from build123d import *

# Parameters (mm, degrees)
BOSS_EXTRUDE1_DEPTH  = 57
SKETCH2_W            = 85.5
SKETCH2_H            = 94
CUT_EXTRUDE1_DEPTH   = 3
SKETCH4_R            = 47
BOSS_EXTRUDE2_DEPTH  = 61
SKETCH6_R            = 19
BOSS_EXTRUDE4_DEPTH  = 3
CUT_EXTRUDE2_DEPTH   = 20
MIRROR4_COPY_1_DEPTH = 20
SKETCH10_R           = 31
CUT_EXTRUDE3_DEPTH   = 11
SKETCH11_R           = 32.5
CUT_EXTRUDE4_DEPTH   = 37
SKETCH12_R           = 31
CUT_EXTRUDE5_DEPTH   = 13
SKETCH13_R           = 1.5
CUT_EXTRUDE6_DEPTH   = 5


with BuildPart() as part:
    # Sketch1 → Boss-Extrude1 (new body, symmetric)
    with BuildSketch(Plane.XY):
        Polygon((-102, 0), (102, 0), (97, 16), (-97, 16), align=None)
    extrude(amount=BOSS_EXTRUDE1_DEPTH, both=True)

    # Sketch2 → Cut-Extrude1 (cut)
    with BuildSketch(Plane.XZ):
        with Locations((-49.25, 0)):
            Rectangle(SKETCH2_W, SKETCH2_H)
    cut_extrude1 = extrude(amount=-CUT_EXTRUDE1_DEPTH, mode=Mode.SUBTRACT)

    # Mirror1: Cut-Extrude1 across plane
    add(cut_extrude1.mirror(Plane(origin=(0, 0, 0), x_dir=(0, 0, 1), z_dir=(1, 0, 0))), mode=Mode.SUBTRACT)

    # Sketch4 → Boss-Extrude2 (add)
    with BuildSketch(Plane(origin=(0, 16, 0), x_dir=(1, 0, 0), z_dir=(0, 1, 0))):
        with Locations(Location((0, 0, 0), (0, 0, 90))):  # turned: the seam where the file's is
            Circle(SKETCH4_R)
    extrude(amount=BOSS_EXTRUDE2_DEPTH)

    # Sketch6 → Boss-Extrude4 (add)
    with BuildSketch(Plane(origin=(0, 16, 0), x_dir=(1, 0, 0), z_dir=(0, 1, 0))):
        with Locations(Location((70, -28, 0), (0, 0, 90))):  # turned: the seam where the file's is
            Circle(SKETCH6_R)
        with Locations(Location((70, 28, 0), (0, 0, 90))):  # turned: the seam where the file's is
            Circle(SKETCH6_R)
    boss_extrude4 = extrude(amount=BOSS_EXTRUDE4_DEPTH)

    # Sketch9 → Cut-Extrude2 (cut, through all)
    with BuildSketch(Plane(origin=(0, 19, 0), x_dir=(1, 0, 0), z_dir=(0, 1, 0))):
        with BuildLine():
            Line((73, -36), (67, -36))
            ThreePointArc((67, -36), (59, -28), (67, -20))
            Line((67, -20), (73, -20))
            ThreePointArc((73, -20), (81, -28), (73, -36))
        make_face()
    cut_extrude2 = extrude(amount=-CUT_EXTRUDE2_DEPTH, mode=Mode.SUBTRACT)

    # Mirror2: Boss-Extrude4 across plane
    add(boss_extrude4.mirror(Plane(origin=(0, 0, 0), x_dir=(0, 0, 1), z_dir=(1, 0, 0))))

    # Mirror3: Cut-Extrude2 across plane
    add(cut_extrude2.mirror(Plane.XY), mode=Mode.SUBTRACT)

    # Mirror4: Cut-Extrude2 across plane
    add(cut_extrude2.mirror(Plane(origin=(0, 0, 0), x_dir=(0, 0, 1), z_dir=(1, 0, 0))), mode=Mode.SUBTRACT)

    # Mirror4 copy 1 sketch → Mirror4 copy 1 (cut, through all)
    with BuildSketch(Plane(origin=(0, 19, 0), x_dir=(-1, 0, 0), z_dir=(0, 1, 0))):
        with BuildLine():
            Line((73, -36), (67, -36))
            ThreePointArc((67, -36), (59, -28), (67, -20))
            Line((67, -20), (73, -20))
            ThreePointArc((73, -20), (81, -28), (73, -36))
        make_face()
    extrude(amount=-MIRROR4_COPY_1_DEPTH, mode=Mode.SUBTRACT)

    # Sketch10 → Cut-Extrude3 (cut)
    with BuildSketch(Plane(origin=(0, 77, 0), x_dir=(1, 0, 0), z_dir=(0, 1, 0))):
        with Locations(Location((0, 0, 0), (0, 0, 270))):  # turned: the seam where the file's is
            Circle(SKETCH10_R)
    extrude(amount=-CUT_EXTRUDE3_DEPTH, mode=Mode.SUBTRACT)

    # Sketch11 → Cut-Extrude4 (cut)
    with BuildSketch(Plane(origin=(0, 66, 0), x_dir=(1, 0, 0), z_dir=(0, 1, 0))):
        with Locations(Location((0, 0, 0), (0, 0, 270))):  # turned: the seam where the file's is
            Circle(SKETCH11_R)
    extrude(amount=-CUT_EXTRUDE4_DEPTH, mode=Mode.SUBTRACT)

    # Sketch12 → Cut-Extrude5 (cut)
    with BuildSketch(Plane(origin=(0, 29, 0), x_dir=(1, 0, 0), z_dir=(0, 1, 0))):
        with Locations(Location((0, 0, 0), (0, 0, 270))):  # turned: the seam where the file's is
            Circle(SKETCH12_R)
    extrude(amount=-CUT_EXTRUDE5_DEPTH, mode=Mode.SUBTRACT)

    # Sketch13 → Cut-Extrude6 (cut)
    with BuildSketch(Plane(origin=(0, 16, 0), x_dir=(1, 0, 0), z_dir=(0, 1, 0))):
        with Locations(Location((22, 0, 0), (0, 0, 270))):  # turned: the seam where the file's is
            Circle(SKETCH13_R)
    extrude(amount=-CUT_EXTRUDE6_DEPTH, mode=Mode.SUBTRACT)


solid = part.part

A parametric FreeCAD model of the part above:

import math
import FreeCAD as App
import Part
import Sketcher
from FreeCAD import Vector

doc = App.newDocument("Part")
body = doc.addObject("PartDesign::Body", "Body")

sketch1 = body.newObject("Sketcher::SketchObject", "Sketch")
sketch1.AttachmentSupport = (doc.getObject("XY_Plane"), [""])
sketch1.MapMode = "FlatFace"
sketch1.addGeometry(Part.LineSegment(Vector(-102, 0, 0), Vector(102, 0, 0)), False)
sketch1.addGeometry(Part.LineSegment(Vector(102, 0, 0), Vector(97, 16, 0)), False)
sketch1.addGeometry(Part.LineSegment(Vector(97, 16, 0), Vector(-97, 16, 0)), False)
sketch1.addGeometry(Part.LineSegment(Vector(-97, 16, 0), Vector(-102, 0, 0)), False)
sketch1.addConstraint(Sketcher.Constraint("Coincident", 0, 2, 1, 1))
sketch1.addConstraint(Sketcher.Constraint("Coincident", 1, 2, 2, 1))
sketch1.addConstraint(Sketcher.Constraint("Coincident", 2, 2, 3, 1))
sketch1.addConstraint(Sketcher.Constraint("Coincident", 3, 2, 0, 1))
sketch1.addConstraint(Sketcher.Constraint("Horizontal", 0))
sketch1.addConstraint(Sketcher.Constraint("Horizontal", 2))
sketch1.addConstraint(Sketcher.Constraint("Symmetric", 0, 2, 3, 2, -1, 1))
sketch1.addConstraint(Sketcher.Constraint("Equal", 1, 3))
sketch1.addConstraint(Sketcher.Constraint("DistanceX", 0, 1, 0, 2, 204.0))
sketch1.addConstraint(Sketcher.Constraint("DistanceX", 2, 2, 2, 1, 194.0))
sketch1.addConstraint(Sketcher.Constraint("DistanceY", -1, 1, 1, 2, 16.0))
pad1 = body.newObject("PartDesign::Pad", "Pad")
pad1.Profile = sketch1
pad1.Length = 114
pad1.Midplane = True

sketch2 = body.newObject("Sketcher::SketchObject", "Sketch001")
sketch2.AttachmentSupport = (doc.getObject("XZ_Plane"), [""])
sketch2.MapMode = "FlatFace"
sketch2.addGeometry(Part.LineSegment(Vector(-92, 47, 0), Vector(-92, -47, 0)), False)
sketch2.addGeometry(Part.LineSegment(Vector(-92, -47, 0), Vector(-6, -47, 0)), False)
sketch2.addGeometry(Part.LineSegment(Vector(-6, -47, 0), Vector(-6, 47, 0)), False)
sketch2.addGeometry(Part.LineSegment(Vector(-6, 47, 0), Vector(-92, 47, 0)), False)
sketch2.addConstraint(Sketcher.Constraint("Coincident", 0, 2, 1, 1))
sketch2.addConstraint(Sketcher.Constraint("Coincident", 1, 2, 2, 1))
sketch2.addConstraint(Sketcher.Constraint("Coincident", 2, 2, 3, 1))
sketch2.addConstraint(Sketcher.Constraint("Coincident", 3, 2, 0, 1))
sketch2.addConstraint(Sketcher.Constraint("Vertical", 0))
sketch2.addConstraint(Sketcher.Constraint("Horizontal", 1))
sketch2.addConstraint(Sketcher.Constraint("Vertical", 2))
sketch2.addConstraint(Sketcher.Constraint("Horizontal", 3))
sketch2.addConstraint(Sketcher.Constraint("DistanceY", 0, 2, 0, 1, 94.0))
sketch2.addConstraint(Sketcher.Constraint("DistanceX", 1, 1, 1, 2, 85.5))
sketch2.addConstraint(Sketcher.Constraint("DistanceX", 0, 2, -1, 1, 92.0))
sketch2.addConstraint(Sketcher.Constraint("DistanceY", 0, 2, -1, 1, 47.0))
pocket1 = body.newObject("PartDesign::Pocket", "Pocket")
pocket1.Profile = sketch2
pocket1.Length = 3
doc.recompute()

mirrored = body.newObject("PartDesign::Mirrored", "Mirrored")
mirrored.Originals = [pocket1]
mirrored.MirrorPlane = (doc.getObject("YZ_Plane"), [""])
body.Tip = mirrored

sketch3 = body.newObject("Sketcher::SketchObject", "Sketch002")
sketch3.AttachmentSupport = (doc.getObject("XZ_Plane"), [""])
sketch3.MapMode = "FlatFace"
sketch3.AttachmentOffset = App.Placement(Vector(0, 0, -16), App.Rotation())
sketch3.addGeometry(Part.Circle(Vector(0, 0, 0), Vector(0, 0, 1), 47), False)
sketch3.addConstraint(Sketcher.Constraint("Coincident", 0, 3, -1, 1))
sketch3.addConstraint(Sketcher.Constraint("Diameter", 0, 94.0))
pad2 = body.newObject("PartDesign::Pad", "Pad001")
pad2.Profile = sketch3
pad2.Length = 61
pad2.Reversed = True

sketch4 = body.newObject("Sketcher::SketchObject", "Sketch003")
sketch4.AttachmentSupport = (doc.getObject("XZ_Plane"), [""])
sketch4.MapMode = "FlatFace"
sketch4.AttachmentOffset = App.Placement(Vector(0, 0, -16), App.Rotation())
sketch4.addGeometry(Part.Circle(Vector(70, 28, 0), Vector(0, 0, 1), 19), False)
sketch4.addGeometry(Part.Circle(Vector(70, -28, 0), Vector(0, 0, 1), 19), False)
sketch4.addConstraint(Sketcher.Constraint("Equal", 0, 1))
sketch4.addConstraint(Sketcher.Constraint("Symmetric", 0, 3, 1, 3, -1))
sketch4.addConstraint(Sketcher.Constraint("Diameter", 0, 38.0))
sketch4.addConstraint(Sketcher.Constraint("DistanceX", -1, 1, 0, 3, 70.0))
sketch4.addConstraint(Sketcher.Constraint("DistanceY", -1, 1, 0, 3, 28.0))
pad3 = body.newObject("PartDesign::Pad", "Pad002")
pad3.Profile = sketch4
pad3.Length = 3
pad3.Reversed = True

sketch5 = body.newObject("Sketcher::SketchObject", "Sketch004")
sketch5.AttachmentSupport = (doc.getObject("XZ_Plane"), [""])
sketch5.MapMode = "FlatFace"
sketch5.AttachmentOffset = App.Placement(Vector(0, 0, -19), App.Rotation())
sketch5.addGeometry(Part.LineSegment(Vector(67, 36, 0), Vector(73, 36, 0)), False)
sketch5.addGeometry(Part.ArcOfCircle(Part.Circle(Vector(73, 28, 0), Vector(0, 0, 1), 8), math.radians(-90), math.radians(90)), False)
sketch5.addGeometry(Part.LineSegment(Vector(73, 20, 0), Vector(67, 20, 0)), False)
sketch5.addGeometry(Part.ArcOfCircle(Part.Circle(Vector(67, 28, 0), Vector(0, 0, 1), 8), math.radians(90), math.radians(270)), False)
sketch5.addConstraint(Sketcher.Constraint("Tangent", 0, 2, 1, 2))
sketch5.addConstraint(Sketcher.Constraint("Tangent", 1, 1, 2, 1))
sketch5.addConstraint(Sketcher.Constraint("Tangent", 2, 2, 3, 2))
sketch5.addConstraint(Sketcher.Constraint("Tangent", 3, 1, 0, 1))
sketch5.addConstraint(Sketcher.Constraint("Horizontal", 0))
sketch5.addConstraint(Sketcher.Constraint("Horizontal", 2))
sketch5.addConstraint(Sketcher.Constraint("Radius", 1, 8.0))
sketch5.addConstraint(Sketcher.Constraint("DistanceX", 0, 1, 0, 2, 6.0))
sketch5.addConstraint(Sketcher.Constraint("DistanceX", -1, 1, 1, 3, 73.0))
sketch5.addConstraint(Sketcher.Constraint("DistanceY", -1, 1, 1, 3, 28.0))
pocket2 = body.newObject("PartDesign::Pocket", "Pocket001")
pocket2.Profile = sketch5
pocket2.Type = "ThroughAll"
pocket2.Reversed = True
doc.recompute()

mirrored2 = body.newObject("PartDesign::Mirrored", "Mirrored001")
mirrored2.Originals = [pad3]
mirrored2.MirrorPlane = (doc.getObject("YZ_Plane"), [""])
body.Tip = mirrored2
doc.recompute()

mirrored3 = body.newObject("PartDesign::Mirrored", "Mirrored002")
mirrored3.Originals = [pocket2]
mirrored3.MirrorPlane = (doc.getObject("XY_Plane"), [""])
body.Tip = mirrored3
doc.recompute()

mirrored4 = body.newObject("PartDesign::Mirrored", "Mirrored003")
mirrored4.Originals = [pocket2]
mirrored4.MirrorPlane = (doc.getObject("YZ_Plane"), [""])
body.Tip = mirrored4

sketch6 = body.newObject("Sketcher::SketchObject", "Sketch005")
sketch6.AttachmentSupport = (doc.getObject("XZ_Plane"), [""])
sketch6.MapMode = "FlatFace"
sketch6.AttachmentOffset = App.Placement(Vector(0, 0, -19), App.Rotation())
sketch6.addGeometry(Part.LineSegment(Vector(-67, -36, 0), Vector(-73, -36, 0)), False)
sketch6.addGeometry(Part.ArcOfCircle(Part.Circle(Vector(-73, -28, 0), Vector(0, 0, 1), 8), math.radians(90), math.radians(270)), False)
sketch6.addGeometry(Part.LineSegment(Vector(-73, -20, 0), Vector(-67, -20, 0)), False)
sketch6.addGeometry(Part.ArcOfCircle(Part.Circle(Vector(-67, -28, 0), Vector(0, 0, 1), 8), math.radians(-90), math.radians(90)), False)
sketch6.addConstraint(Sketcher.Constraint("Tangent", 0, 2, 1, 2))
sketch6.addConstraint(Sketcher.Constraint("Tangent", 1, 1, 2, 1))
sketch6.addConstraint(Sketcher.Constraint("Tangent", 2, 2, 3, 2))
sketch6.addConstraint(Sketcher.Constraint("Tangent", 3, 1, 0, 1))
sketch6.addConstraint(Sketcher.Constraint("Horizontal", 0))
sketch6.addConstraint(Sketcher.Constraint("Horizontal", 2))
sketch6.addConstraint(Sketcher.Constraint("Radius", 1, 8.0))
sketch6.addConstraint(Sketcher.Constraint("DistanceX", 0, 2, 0, 1, 6.0))
sketch6.addConstraint(Sketcher.Constraint("DistanceX", 1, 3, -1, 1, 73.0))
sketch6.addConstraint(Sketcher.Constraint("DistanceY", 1, 3, -1, 1, 28.0))
pocket3 = body.newObject("PartDesign::Pocket", "Pocket002")
pocket3.Profile = sketch6
pocket3.Type = "ThroughAll"
pocket3.Reversed = True

sketch7 = body.newObject("Sketcher::SketchObject", "Sketch006")
sketch7.AttachmentSupport = (doc.getObject("XZ_Plane"), [""])
sketch7.MapMode = "FlatFace"
sketch7.AttachmentOffset = App.Placement(Vector(0, 0, -77), App.Rotation())
sketch7.addGeometry(Part.Circle(Vector(0, 0, 0), Vector(0, 0, 1), 31), False)
sketch7.addConstraint(Sketcher.Constraint("Coincident", 0, 3, -1, 1))
sketch7.addConstraint(Sketcher.Constraint("Diameter", 0, 62.0))
pocket4 = body.newObject("PartDesign::Pocket", "Pocket003")
pocket4.Profile = sketch7
pocket4.Length = 11
pocket4.Reversed = True

sketch8 = body.newObject("Sketcher::SketchObject", "Sketch007")
sketch8.AttachmentSupport = (doc.getObject("XZ_Plane"), [""])
sketch8.MapMode = "FlatFace"
sketch8.AttachmentOffset = App.Placement(Vector(0, 0, -66), App.Rotation())
sketch8.addGeometry(Part.Circle(Vector(0, 0, 0), Vector(0, 0, 1), 32), False)
sketch8.addConstraint(Sketcher.Constraint("Coincident", 0, 3, -1, 1))
sketch8.addConstraint(Sketcher.Constraint("Diameter", 0, 65.0))
pocket5 = body.newObject("PartDesign::Pocket", "Pocket004")
pocket5.Profile = sketch8
pocket5.Length = 37
pocket5.Reversed = True

sketch9 = body.newObject("Sketcher::SketchObject", "Sketch008")
sketch9.AttachmentSupport = (doc.getObject("XZ_Plane"), [""])
sketch9.MapMode = "FlatFace"
sketch9.AttachmentOffset = App.Placement(Vector(0, 0, -29), App.Rotation())
sketch9.addGeometry(Part.Circle(Vector(0, 0, 0), Vector(0, 0, 1), 31), False)
sketch9.addConstraint(Sketcher.Constraint("Coincident", 0, 3, -1, 1))
sketch9.addConstraint(Sketcher.Constraint("Diameter", 0, 62.0))
pocket6 = body.newObject("PartDesign::Pocket", "Pocket005")
pocket6.Profile = sketch9
pocket6.Length = 13
pocket6.Reversed = True

sketch10 = body.newObject("Sketcher::SketchObject", "Sketch009")
sketch10.AttachmentSupport = (doc.getObject("XZ_Plane"), [""])
sketch10.MapMode = "FlatFace"
sketch10.AttachmentOffset = App.Placement(Vector(0, 0, -16), App.Rotation())
sketch10.addGeometry(Part.Circle(Vector(22, 0, 0), Vector(0, 0, 1), 1.5), False)
sketch10.addConstraint(Sketcher.Constraint("PointOnObject", 0, 3, -1))
sketch10.addConstraint(Sketcher.Constraint("Diameter", 0, 3.0))
sketch10.addConstraint(Sketcher.Constraint("DistanceX", -1, 1, 0, 3, 22.0))
pocket7 = body.newObject("PartDesign::Pocket", "Pocket006")
pocket7.Profile = sketch10
pocket7.Length = 5
pocket7.Reversed = True

doc.recompute()
